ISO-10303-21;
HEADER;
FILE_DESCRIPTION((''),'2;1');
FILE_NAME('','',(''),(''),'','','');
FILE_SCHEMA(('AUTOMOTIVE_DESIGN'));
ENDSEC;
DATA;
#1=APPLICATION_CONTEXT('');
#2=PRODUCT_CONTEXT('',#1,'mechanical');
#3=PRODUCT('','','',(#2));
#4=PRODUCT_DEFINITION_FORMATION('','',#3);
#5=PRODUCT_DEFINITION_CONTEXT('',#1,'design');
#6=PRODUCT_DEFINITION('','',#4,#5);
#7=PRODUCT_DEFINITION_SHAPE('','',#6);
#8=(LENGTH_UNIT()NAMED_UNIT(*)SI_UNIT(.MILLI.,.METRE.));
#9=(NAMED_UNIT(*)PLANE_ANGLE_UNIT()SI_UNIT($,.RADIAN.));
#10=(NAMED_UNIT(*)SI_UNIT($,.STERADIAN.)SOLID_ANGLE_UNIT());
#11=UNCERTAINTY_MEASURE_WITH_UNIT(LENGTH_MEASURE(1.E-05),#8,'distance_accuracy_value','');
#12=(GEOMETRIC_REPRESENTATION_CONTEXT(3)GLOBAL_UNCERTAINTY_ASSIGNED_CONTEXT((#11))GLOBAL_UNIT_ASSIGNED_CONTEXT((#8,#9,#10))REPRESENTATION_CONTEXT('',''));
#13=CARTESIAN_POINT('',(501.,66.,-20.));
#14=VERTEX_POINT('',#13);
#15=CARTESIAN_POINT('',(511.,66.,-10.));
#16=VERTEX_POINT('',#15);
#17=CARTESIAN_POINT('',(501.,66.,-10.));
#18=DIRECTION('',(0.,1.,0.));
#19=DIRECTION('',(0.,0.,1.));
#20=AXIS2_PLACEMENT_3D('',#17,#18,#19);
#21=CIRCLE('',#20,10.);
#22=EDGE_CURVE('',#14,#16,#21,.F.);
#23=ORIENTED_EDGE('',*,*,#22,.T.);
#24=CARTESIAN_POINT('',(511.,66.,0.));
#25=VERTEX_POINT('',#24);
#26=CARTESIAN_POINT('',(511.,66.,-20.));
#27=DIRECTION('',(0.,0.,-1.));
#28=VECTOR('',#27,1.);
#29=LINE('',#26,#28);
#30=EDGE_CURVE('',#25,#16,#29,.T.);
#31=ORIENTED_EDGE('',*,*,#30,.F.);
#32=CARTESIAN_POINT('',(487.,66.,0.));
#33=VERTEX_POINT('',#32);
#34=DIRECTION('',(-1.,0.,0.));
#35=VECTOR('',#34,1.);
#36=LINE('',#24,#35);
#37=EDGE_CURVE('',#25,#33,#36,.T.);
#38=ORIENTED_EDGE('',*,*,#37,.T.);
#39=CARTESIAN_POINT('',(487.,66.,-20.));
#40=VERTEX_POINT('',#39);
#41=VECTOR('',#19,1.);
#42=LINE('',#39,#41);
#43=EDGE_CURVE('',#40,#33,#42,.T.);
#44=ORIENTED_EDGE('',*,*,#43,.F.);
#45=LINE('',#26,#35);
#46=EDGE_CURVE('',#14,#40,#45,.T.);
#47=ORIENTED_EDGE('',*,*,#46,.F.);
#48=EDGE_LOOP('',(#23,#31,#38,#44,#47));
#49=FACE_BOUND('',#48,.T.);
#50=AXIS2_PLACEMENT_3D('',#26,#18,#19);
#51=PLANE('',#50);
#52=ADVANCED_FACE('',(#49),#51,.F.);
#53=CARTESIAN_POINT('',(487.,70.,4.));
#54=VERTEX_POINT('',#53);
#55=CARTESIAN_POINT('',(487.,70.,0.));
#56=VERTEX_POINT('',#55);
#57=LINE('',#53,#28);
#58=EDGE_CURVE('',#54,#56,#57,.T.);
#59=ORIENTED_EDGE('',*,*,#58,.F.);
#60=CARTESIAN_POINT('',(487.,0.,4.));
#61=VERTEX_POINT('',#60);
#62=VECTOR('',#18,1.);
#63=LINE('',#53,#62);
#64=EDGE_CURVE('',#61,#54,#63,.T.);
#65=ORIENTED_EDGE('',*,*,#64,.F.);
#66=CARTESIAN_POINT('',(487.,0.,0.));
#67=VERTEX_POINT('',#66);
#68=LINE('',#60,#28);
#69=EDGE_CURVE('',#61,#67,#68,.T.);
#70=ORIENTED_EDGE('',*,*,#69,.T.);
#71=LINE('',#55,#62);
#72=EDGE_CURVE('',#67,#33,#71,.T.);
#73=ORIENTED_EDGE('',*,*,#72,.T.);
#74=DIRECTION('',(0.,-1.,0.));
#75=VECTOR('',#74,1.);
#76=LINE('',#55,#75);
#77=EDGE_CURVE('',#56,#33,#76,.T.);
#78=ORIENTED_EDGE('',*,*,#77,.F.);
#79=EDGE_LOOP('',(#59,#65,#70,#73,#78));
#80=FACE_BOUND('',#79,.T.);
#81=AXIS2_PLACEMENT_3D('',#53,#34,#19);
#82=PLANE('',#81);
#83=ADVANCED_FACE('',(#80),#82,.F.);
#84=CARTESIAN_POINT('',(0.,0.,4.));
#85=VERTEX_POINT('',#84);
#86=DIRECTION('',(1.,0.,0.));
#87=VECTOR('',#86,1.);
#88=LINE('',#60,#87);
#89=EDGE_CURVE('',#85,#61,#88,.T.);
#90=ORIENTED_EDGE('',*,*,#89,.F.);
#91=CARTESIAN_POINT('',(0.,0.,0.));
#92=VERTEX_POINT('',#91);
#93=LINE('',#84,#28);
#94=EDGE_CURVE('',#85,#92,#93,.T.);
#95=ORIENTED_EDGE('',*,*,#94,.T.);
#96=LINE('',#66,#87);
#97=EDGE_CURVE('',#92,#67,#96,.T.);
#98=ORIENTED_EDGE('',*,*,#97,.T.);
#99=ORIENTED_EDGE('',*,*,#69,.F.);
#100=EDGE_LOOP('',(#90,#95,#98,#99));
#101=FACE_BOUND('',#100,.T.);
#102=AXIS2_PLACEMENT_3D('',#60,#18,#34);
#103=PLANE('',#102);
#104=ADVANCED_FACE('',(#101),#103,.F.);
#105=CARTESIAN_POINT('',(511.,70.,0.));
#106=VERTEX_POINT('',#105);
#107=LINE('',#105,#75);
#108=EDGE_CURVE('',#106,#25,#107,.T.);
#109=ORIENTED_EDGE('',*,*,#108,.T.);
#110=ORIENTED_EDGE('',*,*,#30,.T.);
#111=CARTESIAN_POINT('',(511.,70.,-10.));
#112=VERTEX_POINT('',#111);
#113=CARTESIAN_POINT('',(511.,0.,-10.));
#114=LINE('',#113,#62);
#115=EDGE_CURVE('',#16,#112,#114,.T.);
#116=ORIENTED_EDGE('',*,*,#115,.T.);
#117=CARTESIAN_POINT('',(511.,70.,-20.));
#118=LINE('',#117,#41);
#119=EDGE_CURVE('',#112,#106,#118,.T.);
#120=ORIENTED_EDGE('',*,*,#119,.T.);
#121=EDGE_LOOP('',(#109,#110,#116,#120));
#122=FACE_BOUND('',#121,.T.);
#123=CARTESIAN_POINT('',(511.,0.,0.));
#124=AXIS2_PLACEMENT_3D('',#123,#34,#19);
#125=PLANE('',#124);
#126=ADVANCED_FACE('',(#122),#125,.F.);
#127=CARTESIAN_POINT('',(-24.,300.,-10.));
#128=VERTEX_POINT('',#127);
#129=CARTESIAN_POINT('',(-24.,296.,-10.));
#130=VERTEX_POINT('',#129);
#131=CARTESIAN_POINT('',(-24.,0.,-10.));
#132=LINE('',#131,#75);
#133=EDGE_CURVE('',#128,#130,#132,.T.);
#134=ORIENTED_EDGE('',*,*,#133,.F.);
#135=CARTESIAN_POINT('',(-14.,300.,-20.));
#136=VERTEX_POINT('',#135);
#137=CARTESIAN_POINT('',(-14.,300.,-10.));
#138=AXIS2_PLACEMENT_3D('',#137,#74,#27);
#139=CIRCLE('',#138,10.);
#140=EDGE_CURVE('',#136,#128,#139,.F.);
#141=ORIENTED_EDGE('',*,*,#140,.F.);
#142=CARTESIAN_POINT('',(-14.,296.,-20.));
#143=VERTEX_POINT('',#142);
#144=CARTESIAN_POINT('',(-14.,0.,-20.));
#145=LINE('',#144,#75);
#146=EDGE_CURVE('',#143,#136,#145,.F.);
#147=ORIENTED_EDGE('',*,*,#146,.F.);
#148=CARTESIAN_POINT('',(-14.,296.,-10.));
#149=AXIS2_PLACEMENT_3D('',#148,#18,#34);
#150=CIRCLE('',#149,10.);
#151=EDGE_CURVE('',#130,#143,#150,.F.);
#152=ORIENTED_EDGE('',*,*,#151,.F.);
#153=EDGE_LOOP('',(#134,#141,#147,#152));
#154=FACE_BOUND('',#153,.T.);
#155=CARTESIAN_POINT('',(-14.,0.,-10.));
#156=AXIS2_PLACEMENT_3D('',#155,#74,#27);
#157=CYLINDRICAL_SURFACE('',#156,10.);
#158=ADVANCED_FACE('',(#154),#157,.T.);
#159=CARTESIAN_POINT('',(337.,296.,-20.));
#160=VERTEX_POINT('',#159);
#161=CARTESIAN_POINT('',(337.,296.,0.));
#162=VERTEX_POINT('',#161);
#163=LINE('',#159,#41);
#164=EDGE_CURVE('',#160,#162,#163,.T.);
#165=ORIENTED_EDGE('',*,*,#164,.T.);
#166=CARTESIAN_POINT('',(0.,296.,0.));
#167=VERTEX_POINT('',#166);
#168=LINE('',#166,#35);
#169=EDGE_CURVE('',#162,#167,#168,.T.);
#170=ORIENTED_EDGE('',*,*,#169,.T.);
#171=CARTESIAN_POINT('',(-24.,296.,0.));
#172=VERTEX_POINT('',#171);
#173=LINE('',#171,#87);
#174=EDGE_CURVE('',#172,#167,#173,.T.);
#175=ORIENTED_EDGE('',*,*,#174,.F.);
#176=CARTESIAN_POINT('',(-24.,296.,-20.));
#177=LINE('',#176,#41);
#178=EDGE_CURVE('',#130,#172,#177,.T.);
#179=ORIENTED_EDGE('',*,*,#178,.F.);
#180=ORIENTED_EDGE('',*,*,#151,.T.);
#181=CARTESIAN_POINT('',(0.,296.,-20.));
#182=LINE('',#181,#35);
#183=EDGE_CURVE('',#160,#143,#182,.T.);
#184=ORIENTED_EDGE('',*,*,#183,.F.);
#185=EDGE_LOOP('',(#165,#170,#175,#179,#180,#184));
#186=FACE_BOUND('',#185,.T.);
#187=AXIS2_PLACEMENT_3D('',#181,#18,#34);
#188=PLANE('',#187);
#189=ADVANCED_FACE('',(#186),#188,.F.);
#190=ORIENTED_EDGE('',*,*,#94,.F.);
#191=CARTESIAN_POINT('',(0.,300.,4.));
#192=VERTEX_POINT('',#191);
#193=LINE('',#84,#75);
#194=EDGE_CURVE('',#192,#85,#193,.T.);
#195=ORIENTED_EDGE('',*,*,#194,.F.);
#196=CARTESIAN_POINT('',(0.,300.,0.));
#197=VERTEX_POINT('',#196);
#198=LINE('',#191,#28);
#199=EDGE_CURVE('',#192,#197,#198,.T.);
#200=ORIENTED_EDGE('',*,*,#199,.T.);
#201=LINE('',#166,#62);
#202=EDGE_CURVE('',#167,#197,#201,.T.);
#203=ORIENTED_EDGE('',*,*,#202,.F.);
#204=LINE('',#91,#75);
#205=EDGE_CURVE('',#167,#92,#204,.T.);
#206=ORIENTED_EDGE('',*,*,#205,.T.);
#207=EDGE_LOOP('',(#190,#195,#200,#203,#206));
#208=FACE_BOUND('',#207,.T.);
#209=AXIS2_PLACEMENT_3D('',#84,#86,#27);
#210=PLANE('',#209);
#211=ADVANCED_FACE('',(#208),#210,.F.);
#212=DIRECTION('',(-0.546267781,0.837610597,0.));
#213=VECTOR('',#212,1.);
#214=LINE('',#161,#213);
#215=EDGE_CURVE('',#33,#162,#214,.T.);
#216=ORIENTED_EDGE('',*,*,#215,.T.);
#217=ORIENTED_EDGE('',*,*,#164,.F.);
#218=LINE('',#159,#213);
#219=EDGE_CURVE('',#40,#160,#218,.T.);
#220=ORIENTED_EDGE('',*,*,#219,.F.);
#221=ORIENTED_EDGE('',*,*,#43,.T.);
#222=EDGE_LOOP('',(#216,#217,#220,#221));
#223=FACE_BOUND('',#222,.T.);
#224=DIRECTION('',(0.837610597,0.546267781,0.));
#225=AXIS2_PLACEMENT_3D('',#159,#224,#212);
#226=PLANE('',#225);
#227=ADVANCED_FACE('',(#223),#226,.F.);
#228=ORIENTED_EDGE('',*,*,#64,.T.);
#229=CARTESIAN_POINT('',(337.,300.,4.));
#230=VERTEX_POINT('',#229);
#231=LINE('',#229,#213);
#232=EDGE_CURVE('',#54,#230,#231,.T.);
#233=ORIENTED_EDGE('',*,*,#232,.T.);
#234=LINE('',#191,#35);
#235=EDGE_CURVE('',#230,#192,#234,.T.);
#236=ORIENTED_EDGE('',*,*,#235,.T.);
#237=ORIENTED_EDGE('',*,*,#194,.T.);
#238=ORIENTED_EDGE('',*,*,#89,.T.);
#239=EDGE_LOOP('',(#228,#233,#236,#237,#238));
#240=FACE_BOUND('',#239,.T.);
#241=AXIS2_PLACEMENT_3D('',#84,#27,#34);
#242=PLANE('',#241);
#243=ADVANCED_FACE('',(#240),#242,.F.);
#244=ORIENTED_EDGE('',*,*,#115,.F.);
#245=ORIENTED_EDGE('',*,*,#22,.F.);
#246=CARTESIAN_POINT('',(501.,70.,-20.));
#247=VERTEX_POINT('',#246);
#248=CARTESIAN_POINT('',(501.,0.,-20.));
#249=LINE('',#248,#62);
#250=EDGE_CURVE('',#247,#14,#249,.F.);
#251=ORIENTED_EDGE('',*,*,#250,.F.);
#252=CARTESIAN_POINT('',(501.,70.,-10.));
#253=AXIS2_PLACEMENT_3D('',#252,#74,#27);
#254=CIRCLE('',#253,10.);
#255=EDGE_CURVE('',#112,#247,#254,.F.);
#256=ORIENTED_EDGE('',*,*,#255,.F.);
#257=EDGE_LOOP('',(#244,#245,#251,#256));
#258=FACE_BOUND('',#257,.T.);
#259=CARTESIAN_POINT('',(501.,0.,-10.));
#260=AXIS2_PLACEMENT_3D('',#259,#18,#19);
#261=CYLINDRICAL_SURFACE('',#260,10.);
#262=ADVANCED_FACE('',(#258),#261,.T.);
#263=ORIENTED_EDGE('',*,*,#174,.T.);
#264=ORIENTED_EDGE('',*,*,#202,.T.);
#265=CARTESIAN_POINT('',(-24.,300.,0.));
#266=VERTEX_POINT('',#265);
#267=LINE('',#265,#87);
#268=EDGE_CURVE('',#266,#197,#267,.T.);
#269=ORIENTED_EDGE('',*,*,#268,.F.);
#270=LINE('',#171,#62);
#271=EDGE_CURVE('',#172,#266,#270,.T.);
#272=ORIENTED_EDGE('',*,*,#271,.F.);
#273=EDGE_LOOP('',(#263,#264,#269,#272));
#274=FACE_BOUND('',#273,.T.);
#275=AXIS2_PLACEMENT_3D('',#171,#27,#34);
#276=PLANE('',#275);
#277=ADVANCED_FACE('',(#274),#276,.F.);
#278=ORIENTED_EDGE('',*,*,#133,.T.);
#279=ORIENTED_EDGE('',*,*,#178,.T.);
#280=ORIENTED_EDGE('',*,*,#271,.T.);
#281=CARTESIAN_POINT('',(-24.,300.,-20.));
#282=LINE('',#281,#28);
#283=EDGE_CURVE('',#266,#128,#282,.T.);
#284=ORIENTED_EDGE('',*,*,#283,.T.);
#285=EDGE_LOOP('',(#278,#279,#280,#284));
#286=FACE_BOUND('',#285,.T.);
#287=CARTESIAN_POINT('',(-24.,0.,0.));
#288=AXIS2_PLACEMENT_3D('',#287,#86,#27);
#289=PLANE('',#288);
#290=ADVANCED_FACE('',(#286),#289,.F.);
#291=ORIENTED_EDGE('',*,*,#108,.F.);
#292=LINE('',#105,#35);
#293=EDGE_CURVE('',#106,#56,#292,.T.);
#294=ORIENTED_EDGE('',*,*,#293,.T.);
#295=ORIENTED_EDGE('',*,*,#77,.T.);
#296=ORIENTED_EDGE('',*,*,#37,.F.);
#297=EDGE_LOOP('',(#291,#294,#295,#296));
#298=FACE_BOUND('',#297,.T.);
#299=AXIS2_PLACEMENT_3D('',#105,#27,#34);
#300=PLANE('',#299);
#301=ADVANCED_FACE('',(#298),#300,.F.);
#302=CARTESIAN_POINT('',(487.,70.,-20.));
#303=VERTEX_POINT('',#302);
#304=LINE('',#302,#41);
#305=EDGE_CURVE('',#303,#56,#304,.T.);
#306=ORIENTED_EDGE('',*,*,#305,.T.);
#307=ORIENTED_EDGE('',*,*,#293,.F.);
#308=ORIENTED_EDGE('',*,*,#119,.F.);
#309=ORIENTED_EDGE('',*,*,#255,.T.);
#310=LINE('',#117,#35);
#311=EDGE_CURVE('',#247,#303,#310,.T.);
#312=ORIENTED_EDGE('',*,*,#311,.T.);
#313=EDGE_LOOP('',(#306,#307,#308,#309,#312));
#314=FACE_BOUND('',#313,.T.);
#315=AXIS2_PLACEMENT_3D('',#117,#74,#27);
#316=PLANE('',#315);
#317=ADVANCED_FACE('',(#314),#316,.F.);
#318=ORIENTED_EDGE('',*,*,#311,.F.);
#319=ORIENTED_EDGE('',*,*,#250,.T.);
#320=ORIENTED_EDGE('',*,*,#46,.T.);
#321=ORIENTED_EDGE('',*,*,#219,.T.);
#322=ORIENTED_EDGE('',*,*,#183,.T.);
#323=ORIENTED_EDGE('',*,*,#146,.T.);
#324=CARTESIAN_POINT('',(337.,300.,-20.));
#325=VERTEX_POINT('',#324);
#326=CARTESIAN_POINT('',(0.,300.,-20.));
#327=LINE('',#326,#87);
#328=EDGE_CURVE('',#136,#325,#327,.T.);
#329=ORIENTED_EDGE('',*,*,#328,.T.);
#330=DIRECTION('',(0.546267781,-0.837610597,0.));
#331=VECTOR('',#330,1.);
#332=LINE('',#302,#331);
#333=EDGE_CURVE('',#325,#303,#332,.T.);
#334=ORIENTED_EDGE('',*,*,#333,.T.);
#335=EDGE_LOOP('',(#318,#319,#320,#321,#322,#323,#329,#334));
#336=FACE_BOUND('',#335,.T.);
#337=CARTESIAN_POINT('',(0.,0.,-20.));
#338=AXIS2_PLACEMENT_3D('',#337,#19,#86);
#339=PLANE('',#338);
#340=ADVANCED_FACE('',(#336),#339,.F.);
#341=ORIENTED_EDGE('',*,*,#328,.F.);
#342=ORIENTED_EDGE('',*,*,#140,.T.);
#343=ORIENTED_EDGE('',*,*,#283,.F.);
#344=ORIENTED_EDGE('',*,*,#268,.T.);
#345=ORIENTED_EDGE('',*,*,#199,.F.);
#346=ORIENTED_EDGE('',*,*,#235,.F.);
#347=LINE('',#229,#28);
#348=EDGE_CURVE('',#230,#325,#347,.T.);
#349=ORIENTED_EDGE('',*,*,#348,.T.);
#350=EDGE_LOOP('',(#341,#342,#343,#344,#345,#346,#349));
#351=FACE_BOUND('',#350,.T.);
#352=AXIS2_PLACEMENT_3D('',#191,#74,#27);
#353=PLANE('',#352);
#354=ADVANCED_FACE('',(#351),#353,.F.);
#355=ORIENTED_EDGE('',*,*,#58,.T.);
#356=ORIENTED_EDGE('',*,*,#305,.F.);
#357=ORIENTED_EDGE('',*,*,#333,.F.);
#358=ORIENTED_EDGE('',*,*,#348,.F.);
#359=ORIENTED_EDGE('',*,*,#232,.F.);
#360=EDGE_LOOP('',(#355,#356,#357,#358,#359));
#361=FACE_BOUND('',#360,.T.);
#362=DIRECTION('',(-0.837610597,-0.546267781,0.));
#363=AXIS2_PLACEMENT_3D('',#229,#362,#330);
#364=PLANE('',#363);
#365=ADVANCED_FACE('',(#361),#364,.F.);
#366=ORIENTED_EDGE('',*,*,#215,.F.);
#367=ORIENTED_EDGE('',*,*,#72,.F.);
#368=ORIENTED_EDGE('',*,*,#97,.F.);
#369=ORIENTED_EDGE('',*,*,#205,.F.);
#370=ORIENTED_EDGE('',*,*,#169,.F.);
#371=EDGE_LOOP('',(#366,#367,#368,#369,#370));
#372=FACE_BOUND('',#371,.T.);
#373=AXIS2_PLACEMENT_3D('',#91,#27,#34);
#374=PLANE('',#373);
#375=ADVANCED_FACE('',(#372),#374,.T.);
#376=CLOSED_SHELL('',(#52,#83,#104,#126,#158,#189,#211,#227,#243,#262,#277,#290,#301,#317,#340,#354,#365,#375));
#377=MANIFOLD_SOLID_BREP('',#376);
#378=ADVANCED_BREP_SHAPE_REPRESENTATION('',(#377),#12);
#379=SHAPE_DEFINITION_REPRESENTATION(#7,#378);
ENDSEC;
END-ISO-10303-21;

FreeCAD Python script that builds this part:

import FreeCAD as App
import Part
import Sketcher
Q = App.Units.Quantity


def edges_at(feature, points):
    """Names of the edges that pass closest to the given points."""
    edges = feature.Shape.Edges
    near = lambda p: min(range(len(edges)), key=lambda i: edges[i].distToShape(Part.Vertex(*p))[0])
    return sorted({f"Edge{near(p) + 1}" for p in points})


def add_polygon(sketch, points):
    """Adds a closed chain of lines whose ends are joined by coincident constraints."""
    first, n = sketch.GeometryCount, len(points)
    for a, b in zip(points, points[1:] + points[:1]):
        sketch.addGeometry(Part.LineSegment(App.Vector(*a, 0), App.Vector(*b, 0)), False)
    for i in range(n):
        sketch.addConstraint(Sketcher.Constraint("Coincident", first + i, 2, first + (i + 1) % n, 1))

doc = App.newDocument("Part")
params = doc.addObject("Spreadsheet::Sheet", "Params")
for row, (alias, value) in enumerate([
    ("sketch1_width", "487 mm"),
    ("sketch1_width2", "337 mm"),
    ("sketch1_height", "300 mm"),
    ("sketch1_height2", "70 mm"),
    ("pad1_length", "4 mm"),
    ("sketch2_width", "337 mm"),
    ("sketch2_height", "4 mm"),
    ("pad2_length", "20 mm"),
    ("sketch3_height", "4 mm"),
    ("pad3_length", "20 mm"),
    ("sketch4_width", "4 mm"),
    ("sketch4_height", "20 mm"),
    ("pad4_length", "24 mm"),
    ("sketch5_width", "4 mm"),
    ("sketch5_height", "20 mm"),
    ("pad5_length", "24 mm"),
    ("fillet_radius", "10 mm"),
], start=1):
    params.set(f"A{row}", alias)
    params.set(f"B{row}", "=" + value)
    params.setAlias(f"B{row}", alias)

body = doc.addObject("PartDesign::Body", "Body")

sketch1 = body.newObject("Sketcher::SketchObject", "Sketch")
sketch1.AttachmentSupport = (doc.getObject("XY_Plane"), [""])
sketch1.MapMode = "FlatFace"
add_polygon(sketch1, [(0, 300), (0, 0), (487, 0), (487, 70), (337, 300)])
sketch1.addConstraint(Sketcher.Constraint("Vertical", 0))
sketch1.addConstraint(Sketcher.Constraint("Horizontal", 1))
sketch1.addConstraint(Sketcher.Constraint("Vertical", 2))
sketch1.addConstraint(Sketcher.Constraint("Horizontal", 4))
sketch1.addConstraint(Sketcher.Constraint("Coincident", 0, 2, -1, 1))
sketch1.addConstraint(Sketcher.Constraint("DistanceX", 1, 1, 1, 2, Q("487 mm")))
sketch1.addConstraint(Sketcher.Constraint("DistanceX", 4, 2, 4, 1, Q("337 mm")))
sketch1.addConstraint(Sketcher.Constraint("DistanceY", 0, 2, 0, 1, Q("300 mm")))
sketch1.addConstraint(Sketcher.Constraint("DistanceY", 2, 1, 2, 2, Q("70 mm")))
sketch1.setExpression("Constraints[10]", "Params.sketch1_width")
sketch1.setExpression("Constraints[11]", "Params.sketch1_width2")
sketch1.setExpression("Constraints[12]", "Params.sketch1_height")
sketch1.setExpression("Constraints[13]", "Params.sketch1_height2")
pad1 = body.newObject("PartDesign::Pad", "Pad")
pad1.Profile = sketch1
pad1.setExpression("Length", "Params.pad1_length")

sketch2 = body.newObject("Sketcher::SketchObject", "Sketch001")
sketch2.AttachmentSupport = (doc.getObject("XY_Plane"), [""])
sketch2.MapMode = "FlatFace"
add_polygon(sketch2, [(337, 300), (337, 296), (0, 296), (0, 300)])
sketch2.addConstraint(Sketcher.Constraint("Vertical", 0))
sketch2.addConstraint(Sketcher.Constraint("Horizontal", 1))
sketch2.addConstraint(Sketcher.Constraint("Vertical", 2))
sketch2.addConstraint(Sketcher.Constraint("Horizontal", 3))
sketch2.addConstraint(Sketcher.Constraint("PointOnObject", 1, 2, -2))
sketch2.addConstraint(Sketcher.Constraint("DistanceX", 1, 2, 1, 1, Q("337 mm")))
sketch2.addConstraint(Sketcher.Constraint("DistanceY", 0, 2, 0, 1, Q("4 mm")))
sketch2.addConstraint(Sketcher.Constraint("DistanceY", -1, 1, 0, 2, Q("296 mm")))
sketch2.setExpression("Constraints[9]", "Params.sketch2_width")
sketch2.setExpression("Constraints[10]", "Params.sketch2_height")
pad2 = body.newObject("PartDesign::Pad", "Pad001")
pad2.Profile = sketch2
pad2.setExpression("Length", "Params.pad2_length")
pad2.Reversed = True

sketch3 = body.newObject("Sketcher::SketchObject", "Sketch002")
sketch3.AttachmentSupport = (doc.getObject("XY_Plane"), [""])
sketch3.MapMode = "FlatFace"
add_polygon(sketch3, [(337, 296), (337, 300), (487, 70), (487, 66)])
sketch3.addConstraint(Sketcher.Constraint("Vertical", 0))
sketch3.addConstraint(Sketcher.Constraint("Vertical", 2))
sketch3.addConstraint(Sketcher.Constraint("Parallel", 1, 3))
sketch3.addConstraint(Sketcher.Constraint("DistanceY", 0, 1, 0, 2, Q("4 mm")))
sketch3.addConstraint(Sketcher.Constraint("DistanceX", -1, 1, 0, 2, Q("337 mm")))
sketch3.addConstraint(Sketcher.Constraint("DistanceY", -1, 1, 0, 2, Q("300 mm")))
sketch3.addConstraint(Sketcher.Constraint("DistanceX", -1, 1, 1, 2, Q("487 mm")))
sketch3.addConstraint(Sketcher.Constraint("DistanceY", -1, 1, 1, 2, Q("70 mm")))
sketch3.setExpression("Constraints[7]", "Params.sketch3_height")
pad3 = body.newObject("PartDesign::Pad", "Pad002")
pad3.Profile = sketch3
pad3.setExpression("Length", "Params.pad3_length")
pad3.Reversed = True

sketch4 = body.newObject("Sketcher::SketchObject", "Sketch003")
sketch4.AttachmentSupport = (doc.getObject("YZ_Plane"), [""])
sketch4.MapMode = "FlatFace"
sketch4.AttachmentOffset = App.Placement(App.Vector(0, 0, 487), App.Rotation())
add_polygon(sketch4, [(70, 0), (66, 0), (66, -20), (70, -20)])
sketch4.addConstraint(Sketcher.Constraint("Horizontal", 0))
sketch4.addConstraint(Sketcher.Constraint("Vertical", 1))
sketch4.addConstraint(Sketcher.Constraint("Horizontal", 2))
sketch4.addConstraint(Sketcher.Constraint("Vertical", 3))
sketch4.addConstraint(Sketcher.Constraint("PointOnObject", 0, 2, -1))
sketch4.addConstraint(Sketcher.Constraint("DistanceX", 0, 2, 0, 1, Q("4 mm")))
sketch4.addConstraint(Sketcher.Constraint("DistanceY", 1, 2, 1, 1, Q("20 mm")))
sketch4.addConstraint(Sketcher.Constraint("DistanceX", -1, 1, 0, 2, Q("66 mm")))
sketch4.setExpression("Constraints[9]", "Params.sketch4_width")
sketch4.setExpression("Constraints[10]", "Params.sketch4_height")
pad4 = body.newObject("PartDesign::Pad", "Pad003")
pad4.Profile = sketch4
pad4.setExpression("Length", "Params.pad4_length")

sketch5 = body.newObject("Sketcher::SketchObject", "Sketch004")
sketch5.AttachmentSupport = (doc.getObject("YZ_Plane"), [""])
sketch5.MapMode = "FlatFace"
add_polygon(sketch5, [(300, -20), (296, -20), (296, 0), (300, 0)])
sketch5.addConstraint(Sketcher.Constraint("Horizontal", 0))
sketch5.addConstraint(Sketcher.Constraint("Vertical", 1))
sketch5.addConstraint(Sketcher.Constraint("Horizontal", 2))
sketch5.addConstraint(Sketcher.Constraint("Vertical", 3))
sketch5.addConstraint(Sketcher.Constraint("PointOnObject", 1, 2, -1))
sketch5.addConstraint(Sketcher.Constraint("DistanceX", 0, 2, 0, 1, Q("4 mm")))
sketch5.addConstraint(Sketcher.Constraint("DistanceY", 1, 1, 1, 2, Q("20 mm")))
sketch5.addConstraint(Sketcher.Constraint("DistanceX", -1, 1, 0, 2, Q("296 mm")))
sketch5.setExpression("Constraints[9]", "Params.sketch5_width")
sketch5.setExpression("Constraints[10]", "Params.sketch5_height")
pad5 = body.newObject("PartDesign::Pad", "Pad004")
pad5.Profile = sketch5
pad5.setExpression("Length", "Params.pad5_length")
pad5.Reversed = True
doc.recompute()

fillet = body.newObject("PartDesign::Fillet", "Fillet")
fillet.Base = (pad5, edges_at(pad5, [(511, 68, -20), (-24, 298, -20)]))
fillet.setExpression("Radius", "Params.fillet_radius")

doc.recompute()
